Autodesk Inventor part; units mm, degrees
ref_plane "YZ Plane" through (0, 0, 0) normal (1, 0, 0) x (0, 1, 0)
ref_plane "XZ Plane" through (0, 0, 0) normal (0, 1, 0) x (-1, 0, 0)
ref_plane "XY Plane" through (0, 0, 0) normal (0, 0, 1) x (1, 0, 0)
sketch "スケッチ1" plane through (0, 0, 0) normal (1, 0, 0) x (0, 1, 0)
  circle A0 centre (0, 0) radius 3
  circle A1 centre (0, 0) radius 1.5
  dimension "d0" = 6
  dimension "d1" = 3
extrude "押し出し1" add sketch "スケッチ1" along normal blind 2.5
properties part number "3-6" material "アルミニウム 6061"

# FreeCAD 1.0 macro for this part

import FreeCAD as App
import Part
import Sketcher
Q = App.Units.Quantity

doc = App.newDocument("Part")
body = doc.addObject("PartDesign::Body", "Body")

# Sketch on YZ plane
sketch1 = body.newObject("Sketcher::SketchObject", "Sketch")
sketch1.AttachmentSupport = (doc.getObject("YZ_Plane"), [""])
sketch1.MapMode = "FlatFace"
sketch1.addGeometry(Part.Circle(App.Vector(0, 0, 0), App.Vector(0, 0, 1), 3), False)
sketch1.addGeometry(Part.Circle(App.Vector(0, 0, 0), App.Vector(0, 0, 1), 1.5), False)
sketch1.addConstraint(Sketcher.Constraint("Coincident", 0, 3, -1, 1))
sketch1.addConstraint(Sketcher.Constraint("Coincident", 1, 3, -1, 1))
sketch1.addConstraint(Sketcher.Constraint("Diameter", 0, Q("6 mm")))
sketch1.addConstraint(Sketcher.Constraint("Diameter", 1, Q("3 mm")))
pad1 = body.newObject("PartDesign::Pad", "Pad")
pad1.Profile = sketch1
pad1.Length = 2.5

doc.recompute()
